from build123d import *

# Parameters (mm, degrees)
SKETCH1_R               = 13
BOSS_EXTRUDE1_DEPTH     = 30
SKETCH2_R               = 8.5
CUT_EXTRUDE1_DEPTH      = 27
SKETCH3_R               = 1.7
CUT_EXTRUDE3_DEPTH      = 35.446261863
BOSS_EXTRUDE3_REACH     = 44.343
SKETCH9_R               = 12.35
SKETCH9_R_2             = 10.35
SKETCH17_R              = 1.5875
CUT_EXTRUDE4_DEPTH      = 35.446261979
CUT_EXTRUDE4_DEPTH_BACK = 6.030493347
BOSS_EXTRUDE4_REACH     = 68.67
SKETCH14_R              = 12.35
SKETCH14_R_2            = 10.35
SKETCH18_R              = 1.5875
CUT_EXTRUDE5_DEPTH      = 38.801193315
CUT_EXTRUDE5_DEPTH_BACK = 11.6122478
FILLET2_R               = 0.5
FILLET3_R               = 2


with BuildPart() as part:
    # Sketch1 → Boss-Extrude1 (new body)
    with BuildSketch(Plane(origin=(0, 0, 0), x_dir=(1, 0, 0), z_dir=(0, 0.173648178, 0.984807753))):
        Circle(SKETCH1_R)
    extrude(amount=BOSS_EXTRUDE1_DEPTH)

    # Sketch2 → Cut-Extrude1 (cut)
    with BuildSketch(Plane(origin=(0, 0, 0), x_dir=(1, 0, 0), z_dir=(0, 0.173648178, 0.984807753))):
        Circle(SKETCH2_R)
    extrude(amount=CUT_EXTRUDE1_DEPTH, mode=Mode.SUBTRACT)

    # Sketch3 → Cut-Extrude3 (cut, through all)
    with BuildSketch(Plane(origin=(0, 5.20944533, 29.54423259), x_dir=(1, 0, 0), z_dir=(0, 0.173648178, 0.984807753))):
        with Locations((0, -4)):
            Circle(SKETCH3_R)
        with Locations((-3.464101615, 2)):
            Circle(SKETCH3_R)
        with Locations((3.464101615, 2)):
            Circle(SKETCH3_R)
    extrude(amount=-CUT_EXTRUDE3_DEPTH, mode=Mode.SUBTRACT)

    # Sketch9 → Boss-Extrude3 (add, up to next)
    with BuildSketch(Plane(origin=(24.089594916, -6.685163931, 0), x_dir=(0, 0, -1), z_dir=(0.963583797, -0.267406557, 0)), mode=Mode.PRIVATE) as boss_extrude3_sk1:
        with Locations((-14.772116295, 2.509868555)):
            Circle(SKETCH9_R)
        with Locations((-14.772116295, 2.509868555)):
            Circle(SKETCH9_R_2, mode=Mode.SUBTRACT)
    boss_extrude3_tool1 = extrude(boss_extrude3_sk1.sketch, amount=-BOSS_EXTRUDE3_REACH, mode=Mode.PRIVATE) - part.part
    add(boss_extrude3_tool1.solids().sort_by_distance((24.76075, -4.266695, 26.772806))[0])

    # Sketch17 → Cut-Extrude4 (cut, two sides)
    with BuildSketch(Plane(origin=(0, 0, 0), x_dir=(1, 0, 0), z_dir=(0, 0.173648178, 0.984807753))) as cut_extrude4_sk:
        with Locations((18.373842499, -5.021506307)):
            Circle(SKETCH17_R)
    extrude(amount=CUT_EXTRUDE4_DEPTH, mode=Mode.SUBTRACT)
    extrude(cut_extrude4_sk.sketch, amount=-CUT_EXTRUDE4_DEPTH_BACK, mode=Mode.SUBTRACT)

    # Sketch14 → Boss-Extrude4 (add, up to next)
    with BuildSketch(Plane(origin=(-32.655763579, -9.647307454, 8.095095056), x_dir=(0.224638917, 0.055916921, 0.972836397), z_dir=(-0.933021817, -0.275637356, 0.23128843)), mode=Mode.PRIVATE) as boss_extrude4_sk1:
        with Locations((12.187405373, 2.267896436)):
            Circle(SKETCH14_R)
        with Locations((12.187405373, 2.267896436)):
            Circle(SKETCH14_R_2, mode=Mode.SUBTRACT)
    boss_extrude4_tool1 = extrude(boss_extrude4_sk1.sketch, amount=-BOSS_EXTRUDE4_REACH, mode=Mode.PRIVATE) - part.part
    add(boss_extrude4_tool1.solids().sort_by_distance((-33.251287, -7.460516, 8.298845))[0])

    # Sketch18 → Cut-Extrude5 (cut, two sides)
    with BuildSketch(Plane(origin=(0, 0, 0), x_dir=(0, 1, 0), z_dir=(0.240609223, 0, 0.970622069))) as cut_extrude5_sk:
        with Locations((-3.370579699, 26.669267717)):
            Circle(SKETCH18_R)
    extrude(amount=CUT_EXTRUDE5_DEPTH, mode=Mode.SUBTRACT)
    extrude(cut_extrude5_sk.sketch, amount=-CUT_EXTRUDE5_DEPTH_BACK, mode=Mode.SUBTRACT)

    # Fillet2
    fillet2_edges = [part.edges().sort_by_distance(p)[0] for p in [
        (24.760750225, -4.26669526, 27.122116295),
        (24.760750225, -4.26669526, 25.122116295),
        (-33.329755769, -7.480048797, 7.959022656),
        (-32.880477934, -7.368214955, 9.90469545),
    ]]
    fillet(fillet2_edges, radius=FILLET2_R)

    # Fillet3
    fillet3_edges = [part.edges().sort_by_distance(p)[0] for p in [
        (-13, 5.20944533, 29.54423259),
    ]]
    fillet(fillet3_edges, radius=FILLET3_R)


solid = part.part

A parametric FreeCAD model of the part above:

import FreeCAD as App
import Part
import Sketcher
from FreeCAD import Vector


def edges_at(feature, points):
    """Names of the edges that pass closest to the given points."""
    edges = feature.Shape.Edges
    near = lambda p: min(range(len(edges)), key=lambda i: edges[i].distToShape(Part.Vertex(*p))[0])
    return sorted({f"Edge{near(p) + 1}" for p in points})

doc = App.newDocument("Part")
body = doc.addObject("PartDesign::Body", "Body")

sketch1 = body.newObject("Sketcher::SketchObject", "Sketch")
sketch1.Placement = App.Placement(Vector(0, 0, 0), App.Rotation(Vector(1, 0, 0), Vector(0, 0.984807753, -0.173648178), Vector(0, 0.173648178, 0.984807753), "ZXY"))
sketch1.addGeometry(Part.Circle(Vector(0, 0, 0), Vector(0, 0, 1), 13), False)
sketch1.addConstraint(Sketcher.Constraint("Coincident", 0, 3, -1, 1))
sketch1.addConstraint(Sketcher.Constraint("Diameter", 0, 26.0))
pad1 = body.newObject("PartDesign::Pad", "Pad")
pad1.Profile = sketch1
pad1.Length = 30

sketch2 = body.newObject("Sketcher::SketchObject", "Sketch001")
sketch2.Placement = App.Placement(Vector(0, 0, 0), App.Rotation(Vector(1, 0, 0), Vector(0, 0.984807753, -0.173648178), Vector(0, 0.173648178, 0.984807753), "ZXY"))
sketch2.addGeometry(Part.Circle(Vector(0, 0, 0), Vector(0, 0, 1), 8), False)
sketch2.addConstraint(Sketcher.Constraint("Coincident", 0, 3, -1, 1))
sketch2.addConstraint(Sketcher.Constraint("Diameter", 0, 17.0))
pocket1 = body.newObject("PartDesign::Pocket", "Pocket")
pocket1.Profile = sketch2
pocket1.Length = 27
pocket1.Reversed = True

sketch3 = body.newObject("Sketcher::SketchObject", "Sketch002")
sketch3.Placement = App.Placement(Vector(0, 5.209445, 29.544233), App.Rotation(Vector(1, 0, 0), Vector(0, 0.984807753, -0.173648178), Vector(0, 0.173648178, 0.984807753), "ZXY"))
sketch3.addGeometry(Part.Circle(Vector(0, -4, 0), Vector(0, 0, 1), 1.7), False)
sketch3.addGeometry(Part.Circle(Vector(-3.5, 2, 0), Vector(0, 0, 1), 1.7), False)
sketch3.addGeometry(Part.Circle(Vector(3.5, 2, 0), Vector(0, 0, 1), 1.7), False)
sketch3.addConstraint(Sketcher.Constraint("Equal", 0, 1))
sketch3.addConstraint(Sketcher.Constraint("Equal", 1, 2))
sketch3.addConstraint(Sketcher.Constraint("Symmetric", 1, 3, 2, 3, -2))
sketch3.addConstraint(Sketcher.Constraint("PointOnObject", 0, 3, -2))
sketch3.addConstraint(Sketcher.Constraint("Diameter", 0, 3.4))
sketch3.addConstraint(Sketcher.Constraint("DistanceY", 0, 3, -1, 1, 4.0))
sketch3.addConstraint(Sketcher.Constraint("DistanceY", -1, 1, 1, 3, 2.0))
sketch3.addConstraint(Sketcher.Constraint("DistanceX", 1, 3, -1, 1, 3.464102))
pocket2 = body.newObject("PartDesign::Pocket", "Pocket001")
pocket2.Profile = sketch3
pocket2.Type = "ThroughAll"

sketch4 = body.newObject("Sketcher::SketchObject", "Sketch003")
sketch4.Placement = App.Placement(Vector(24.089595, -6.685164, 0), App.Rotation(Vector(0, 0, -1), Vector(0.267406557, 0.963583797, 0), Vector(0.963583797, -0.267406557, 0), "ZXY"))
sketch4.addGeometry(Part.Circle(Vector(-15, 3, 0), Vector(0, 0, 1), 12), False)
sketch4.addGeometry(Part.Circle(Vector(-15, 3, 0), Vector(0, 0, 1), 10), False)
sketch4.addConstraint(Sketcher.Constraint("Coincident", 1, 3, 0, 3))
sketch4.addConstraint(Sketcher.Constraint("Diameter", 0, 24.7))
sketch4.addConstraint(Sketcher.Constraint("Diameter", 1, 20.7))
sketch4.addConstraint(Sketcher.Constraint("DistanceY", -1, 1, 0, 3, 2.509869))
sketch4.addConstraint(Sketcher.Constraint("DistanceX", 0, 3, -1, 1, 14.772116))
pad2 = body.newObject("PartDesign::Pad", "Pad001")
pad2.Profile = sketch4
pad2.Type = "UpToFirst"
pad2.Reversed = True

sketch5 = body.newObject("Sketcher::SketchObject", "Sketch004")
sketch5.Placement = App.Placement(Vector(0, 0, 0), App.Rotation(Vector(1, 0, 0), Vector(0, 0.984807753, -0.173648178), Vector(0, 0.173648178, 0.984807753), "ZXY"))
sketch5.addGeometry(Part.Circle(Vector(18.4, -5, 0), Vector(0, 0, 1), 1.6), False)
sketch5.addConstraint(Sketcher.Constraint("Diameter", 0, 3.175))
sketch5.addConstraint(Sketcher.Constraint("DistanceX", -1, 1, 0, 3, 18.373842))
sketch5.addConstraint(Sketcher.Constraint("DistanceY", 0, 3, -1, 1, 5.021506))
pocket3 = body.newObject("PartDesign::Pocket", "Pocket002")
pocket3.Profile = sketch5
pocket3.Type = "ThroughAll"
pocket3.Midplane = True

sketch6 = body.newObject("Sketcher::SketchObject", "Sketch005")
sketch6.Placement = App.Placement(Vector(-32.655764, -9.647307, 8.095095), App.Rotation(Vector(0.224638917, 0.055916921, 0.972836397), Vector(-0.281082989, 0.959633965, 0.00974717), Vector(-0.933021817, -0.275637356, 0.23128843), "ZXY"))
sketch6.addGeometry(Part.Circle(Vector(12, 2, 0), Vector(0, 0, 1), 12), False)
sketch6.addGeometry(Part.Circle(Vector(12, 2, 0), Vector(0, 0, 1), 10), False)
sketch6.addConstraint(Sketcher.Constraint("Coincident", 1, 3, 0, 3))
sketch6.addConstraint(Sketcher.Constraint("Diameter", 0, 24.7))
sketch6.addConstraint(Sketcher.Constraint("Diameter", 1, 20.7))
sketch6.addConstraint(Sketcher.Constraint("DistanceX", -1, 1, 0, 3, 12.187405))
sketch6.addConstraint(Sketcher.Constraint("DistanceY", -1, 1, 0, 3, 2.267896))
pad3 = body.newObject("PartDesign::Pad", "Pad002")
pad3.Profile = sketch6
pad3.Type = "UpToFirst"
pad3.Reversed = True

sketch7 = body.newObject("Sketcher::SketchObject", "Sketch006")
sketch7.Placement = App.Placement(Vector(0, 0, 0), App.Rotation(Vector(0, 1, 0), Vector(-0.970622069, 0, 0.240609223), Vector(0.240609223, 0, 0.970622069), "ZXY"))
sketch7.addGeometry(Part.Circle(Vector(-3.4, 26.7, 0), Vector(0, 0, 1), 1.6), False)
sketch7.addConstraint(Sketcher.Constraint("Diameter", 0, 3.175))
sketch7.addConstraint(Sketcher.Constraint("DistanceX", 0, 3, -1, 1, 3.37058))
sketch7.addConstraint(Sketcher.Constraint("DistanceY", -1, 1, 0, 3, 26.669268))
pocket4 = body.newObject("PartDesign::Pocket", "Pocket003")
pocket4.Profile = sketch7
pocket4.Type = "ThroughAll"
pocket4.Midplane = True
doc.recompute()

fillet = body.newObject("PartDesign::Fillet", "Fillet")
fillet.Base = (pocket4, edges_at(pocket4, [
    (24.761, -4.267, 27.122),
    (24.761, -4.267, 25.122),
    (-33.33, -7.48, 7.959),
    (-32.88, -7.368, 9.905),
]))
fillet.Radius = 0.5
doc.recompute()

fillet2 = body.newObject("PartDesign::Fillet", "Fillet001")
fillet2.Base = (fillet, edges_at(fillet, [(-13, 5.209, 29.544)]))
fillet2.Radius = 2

doc.recompute()
